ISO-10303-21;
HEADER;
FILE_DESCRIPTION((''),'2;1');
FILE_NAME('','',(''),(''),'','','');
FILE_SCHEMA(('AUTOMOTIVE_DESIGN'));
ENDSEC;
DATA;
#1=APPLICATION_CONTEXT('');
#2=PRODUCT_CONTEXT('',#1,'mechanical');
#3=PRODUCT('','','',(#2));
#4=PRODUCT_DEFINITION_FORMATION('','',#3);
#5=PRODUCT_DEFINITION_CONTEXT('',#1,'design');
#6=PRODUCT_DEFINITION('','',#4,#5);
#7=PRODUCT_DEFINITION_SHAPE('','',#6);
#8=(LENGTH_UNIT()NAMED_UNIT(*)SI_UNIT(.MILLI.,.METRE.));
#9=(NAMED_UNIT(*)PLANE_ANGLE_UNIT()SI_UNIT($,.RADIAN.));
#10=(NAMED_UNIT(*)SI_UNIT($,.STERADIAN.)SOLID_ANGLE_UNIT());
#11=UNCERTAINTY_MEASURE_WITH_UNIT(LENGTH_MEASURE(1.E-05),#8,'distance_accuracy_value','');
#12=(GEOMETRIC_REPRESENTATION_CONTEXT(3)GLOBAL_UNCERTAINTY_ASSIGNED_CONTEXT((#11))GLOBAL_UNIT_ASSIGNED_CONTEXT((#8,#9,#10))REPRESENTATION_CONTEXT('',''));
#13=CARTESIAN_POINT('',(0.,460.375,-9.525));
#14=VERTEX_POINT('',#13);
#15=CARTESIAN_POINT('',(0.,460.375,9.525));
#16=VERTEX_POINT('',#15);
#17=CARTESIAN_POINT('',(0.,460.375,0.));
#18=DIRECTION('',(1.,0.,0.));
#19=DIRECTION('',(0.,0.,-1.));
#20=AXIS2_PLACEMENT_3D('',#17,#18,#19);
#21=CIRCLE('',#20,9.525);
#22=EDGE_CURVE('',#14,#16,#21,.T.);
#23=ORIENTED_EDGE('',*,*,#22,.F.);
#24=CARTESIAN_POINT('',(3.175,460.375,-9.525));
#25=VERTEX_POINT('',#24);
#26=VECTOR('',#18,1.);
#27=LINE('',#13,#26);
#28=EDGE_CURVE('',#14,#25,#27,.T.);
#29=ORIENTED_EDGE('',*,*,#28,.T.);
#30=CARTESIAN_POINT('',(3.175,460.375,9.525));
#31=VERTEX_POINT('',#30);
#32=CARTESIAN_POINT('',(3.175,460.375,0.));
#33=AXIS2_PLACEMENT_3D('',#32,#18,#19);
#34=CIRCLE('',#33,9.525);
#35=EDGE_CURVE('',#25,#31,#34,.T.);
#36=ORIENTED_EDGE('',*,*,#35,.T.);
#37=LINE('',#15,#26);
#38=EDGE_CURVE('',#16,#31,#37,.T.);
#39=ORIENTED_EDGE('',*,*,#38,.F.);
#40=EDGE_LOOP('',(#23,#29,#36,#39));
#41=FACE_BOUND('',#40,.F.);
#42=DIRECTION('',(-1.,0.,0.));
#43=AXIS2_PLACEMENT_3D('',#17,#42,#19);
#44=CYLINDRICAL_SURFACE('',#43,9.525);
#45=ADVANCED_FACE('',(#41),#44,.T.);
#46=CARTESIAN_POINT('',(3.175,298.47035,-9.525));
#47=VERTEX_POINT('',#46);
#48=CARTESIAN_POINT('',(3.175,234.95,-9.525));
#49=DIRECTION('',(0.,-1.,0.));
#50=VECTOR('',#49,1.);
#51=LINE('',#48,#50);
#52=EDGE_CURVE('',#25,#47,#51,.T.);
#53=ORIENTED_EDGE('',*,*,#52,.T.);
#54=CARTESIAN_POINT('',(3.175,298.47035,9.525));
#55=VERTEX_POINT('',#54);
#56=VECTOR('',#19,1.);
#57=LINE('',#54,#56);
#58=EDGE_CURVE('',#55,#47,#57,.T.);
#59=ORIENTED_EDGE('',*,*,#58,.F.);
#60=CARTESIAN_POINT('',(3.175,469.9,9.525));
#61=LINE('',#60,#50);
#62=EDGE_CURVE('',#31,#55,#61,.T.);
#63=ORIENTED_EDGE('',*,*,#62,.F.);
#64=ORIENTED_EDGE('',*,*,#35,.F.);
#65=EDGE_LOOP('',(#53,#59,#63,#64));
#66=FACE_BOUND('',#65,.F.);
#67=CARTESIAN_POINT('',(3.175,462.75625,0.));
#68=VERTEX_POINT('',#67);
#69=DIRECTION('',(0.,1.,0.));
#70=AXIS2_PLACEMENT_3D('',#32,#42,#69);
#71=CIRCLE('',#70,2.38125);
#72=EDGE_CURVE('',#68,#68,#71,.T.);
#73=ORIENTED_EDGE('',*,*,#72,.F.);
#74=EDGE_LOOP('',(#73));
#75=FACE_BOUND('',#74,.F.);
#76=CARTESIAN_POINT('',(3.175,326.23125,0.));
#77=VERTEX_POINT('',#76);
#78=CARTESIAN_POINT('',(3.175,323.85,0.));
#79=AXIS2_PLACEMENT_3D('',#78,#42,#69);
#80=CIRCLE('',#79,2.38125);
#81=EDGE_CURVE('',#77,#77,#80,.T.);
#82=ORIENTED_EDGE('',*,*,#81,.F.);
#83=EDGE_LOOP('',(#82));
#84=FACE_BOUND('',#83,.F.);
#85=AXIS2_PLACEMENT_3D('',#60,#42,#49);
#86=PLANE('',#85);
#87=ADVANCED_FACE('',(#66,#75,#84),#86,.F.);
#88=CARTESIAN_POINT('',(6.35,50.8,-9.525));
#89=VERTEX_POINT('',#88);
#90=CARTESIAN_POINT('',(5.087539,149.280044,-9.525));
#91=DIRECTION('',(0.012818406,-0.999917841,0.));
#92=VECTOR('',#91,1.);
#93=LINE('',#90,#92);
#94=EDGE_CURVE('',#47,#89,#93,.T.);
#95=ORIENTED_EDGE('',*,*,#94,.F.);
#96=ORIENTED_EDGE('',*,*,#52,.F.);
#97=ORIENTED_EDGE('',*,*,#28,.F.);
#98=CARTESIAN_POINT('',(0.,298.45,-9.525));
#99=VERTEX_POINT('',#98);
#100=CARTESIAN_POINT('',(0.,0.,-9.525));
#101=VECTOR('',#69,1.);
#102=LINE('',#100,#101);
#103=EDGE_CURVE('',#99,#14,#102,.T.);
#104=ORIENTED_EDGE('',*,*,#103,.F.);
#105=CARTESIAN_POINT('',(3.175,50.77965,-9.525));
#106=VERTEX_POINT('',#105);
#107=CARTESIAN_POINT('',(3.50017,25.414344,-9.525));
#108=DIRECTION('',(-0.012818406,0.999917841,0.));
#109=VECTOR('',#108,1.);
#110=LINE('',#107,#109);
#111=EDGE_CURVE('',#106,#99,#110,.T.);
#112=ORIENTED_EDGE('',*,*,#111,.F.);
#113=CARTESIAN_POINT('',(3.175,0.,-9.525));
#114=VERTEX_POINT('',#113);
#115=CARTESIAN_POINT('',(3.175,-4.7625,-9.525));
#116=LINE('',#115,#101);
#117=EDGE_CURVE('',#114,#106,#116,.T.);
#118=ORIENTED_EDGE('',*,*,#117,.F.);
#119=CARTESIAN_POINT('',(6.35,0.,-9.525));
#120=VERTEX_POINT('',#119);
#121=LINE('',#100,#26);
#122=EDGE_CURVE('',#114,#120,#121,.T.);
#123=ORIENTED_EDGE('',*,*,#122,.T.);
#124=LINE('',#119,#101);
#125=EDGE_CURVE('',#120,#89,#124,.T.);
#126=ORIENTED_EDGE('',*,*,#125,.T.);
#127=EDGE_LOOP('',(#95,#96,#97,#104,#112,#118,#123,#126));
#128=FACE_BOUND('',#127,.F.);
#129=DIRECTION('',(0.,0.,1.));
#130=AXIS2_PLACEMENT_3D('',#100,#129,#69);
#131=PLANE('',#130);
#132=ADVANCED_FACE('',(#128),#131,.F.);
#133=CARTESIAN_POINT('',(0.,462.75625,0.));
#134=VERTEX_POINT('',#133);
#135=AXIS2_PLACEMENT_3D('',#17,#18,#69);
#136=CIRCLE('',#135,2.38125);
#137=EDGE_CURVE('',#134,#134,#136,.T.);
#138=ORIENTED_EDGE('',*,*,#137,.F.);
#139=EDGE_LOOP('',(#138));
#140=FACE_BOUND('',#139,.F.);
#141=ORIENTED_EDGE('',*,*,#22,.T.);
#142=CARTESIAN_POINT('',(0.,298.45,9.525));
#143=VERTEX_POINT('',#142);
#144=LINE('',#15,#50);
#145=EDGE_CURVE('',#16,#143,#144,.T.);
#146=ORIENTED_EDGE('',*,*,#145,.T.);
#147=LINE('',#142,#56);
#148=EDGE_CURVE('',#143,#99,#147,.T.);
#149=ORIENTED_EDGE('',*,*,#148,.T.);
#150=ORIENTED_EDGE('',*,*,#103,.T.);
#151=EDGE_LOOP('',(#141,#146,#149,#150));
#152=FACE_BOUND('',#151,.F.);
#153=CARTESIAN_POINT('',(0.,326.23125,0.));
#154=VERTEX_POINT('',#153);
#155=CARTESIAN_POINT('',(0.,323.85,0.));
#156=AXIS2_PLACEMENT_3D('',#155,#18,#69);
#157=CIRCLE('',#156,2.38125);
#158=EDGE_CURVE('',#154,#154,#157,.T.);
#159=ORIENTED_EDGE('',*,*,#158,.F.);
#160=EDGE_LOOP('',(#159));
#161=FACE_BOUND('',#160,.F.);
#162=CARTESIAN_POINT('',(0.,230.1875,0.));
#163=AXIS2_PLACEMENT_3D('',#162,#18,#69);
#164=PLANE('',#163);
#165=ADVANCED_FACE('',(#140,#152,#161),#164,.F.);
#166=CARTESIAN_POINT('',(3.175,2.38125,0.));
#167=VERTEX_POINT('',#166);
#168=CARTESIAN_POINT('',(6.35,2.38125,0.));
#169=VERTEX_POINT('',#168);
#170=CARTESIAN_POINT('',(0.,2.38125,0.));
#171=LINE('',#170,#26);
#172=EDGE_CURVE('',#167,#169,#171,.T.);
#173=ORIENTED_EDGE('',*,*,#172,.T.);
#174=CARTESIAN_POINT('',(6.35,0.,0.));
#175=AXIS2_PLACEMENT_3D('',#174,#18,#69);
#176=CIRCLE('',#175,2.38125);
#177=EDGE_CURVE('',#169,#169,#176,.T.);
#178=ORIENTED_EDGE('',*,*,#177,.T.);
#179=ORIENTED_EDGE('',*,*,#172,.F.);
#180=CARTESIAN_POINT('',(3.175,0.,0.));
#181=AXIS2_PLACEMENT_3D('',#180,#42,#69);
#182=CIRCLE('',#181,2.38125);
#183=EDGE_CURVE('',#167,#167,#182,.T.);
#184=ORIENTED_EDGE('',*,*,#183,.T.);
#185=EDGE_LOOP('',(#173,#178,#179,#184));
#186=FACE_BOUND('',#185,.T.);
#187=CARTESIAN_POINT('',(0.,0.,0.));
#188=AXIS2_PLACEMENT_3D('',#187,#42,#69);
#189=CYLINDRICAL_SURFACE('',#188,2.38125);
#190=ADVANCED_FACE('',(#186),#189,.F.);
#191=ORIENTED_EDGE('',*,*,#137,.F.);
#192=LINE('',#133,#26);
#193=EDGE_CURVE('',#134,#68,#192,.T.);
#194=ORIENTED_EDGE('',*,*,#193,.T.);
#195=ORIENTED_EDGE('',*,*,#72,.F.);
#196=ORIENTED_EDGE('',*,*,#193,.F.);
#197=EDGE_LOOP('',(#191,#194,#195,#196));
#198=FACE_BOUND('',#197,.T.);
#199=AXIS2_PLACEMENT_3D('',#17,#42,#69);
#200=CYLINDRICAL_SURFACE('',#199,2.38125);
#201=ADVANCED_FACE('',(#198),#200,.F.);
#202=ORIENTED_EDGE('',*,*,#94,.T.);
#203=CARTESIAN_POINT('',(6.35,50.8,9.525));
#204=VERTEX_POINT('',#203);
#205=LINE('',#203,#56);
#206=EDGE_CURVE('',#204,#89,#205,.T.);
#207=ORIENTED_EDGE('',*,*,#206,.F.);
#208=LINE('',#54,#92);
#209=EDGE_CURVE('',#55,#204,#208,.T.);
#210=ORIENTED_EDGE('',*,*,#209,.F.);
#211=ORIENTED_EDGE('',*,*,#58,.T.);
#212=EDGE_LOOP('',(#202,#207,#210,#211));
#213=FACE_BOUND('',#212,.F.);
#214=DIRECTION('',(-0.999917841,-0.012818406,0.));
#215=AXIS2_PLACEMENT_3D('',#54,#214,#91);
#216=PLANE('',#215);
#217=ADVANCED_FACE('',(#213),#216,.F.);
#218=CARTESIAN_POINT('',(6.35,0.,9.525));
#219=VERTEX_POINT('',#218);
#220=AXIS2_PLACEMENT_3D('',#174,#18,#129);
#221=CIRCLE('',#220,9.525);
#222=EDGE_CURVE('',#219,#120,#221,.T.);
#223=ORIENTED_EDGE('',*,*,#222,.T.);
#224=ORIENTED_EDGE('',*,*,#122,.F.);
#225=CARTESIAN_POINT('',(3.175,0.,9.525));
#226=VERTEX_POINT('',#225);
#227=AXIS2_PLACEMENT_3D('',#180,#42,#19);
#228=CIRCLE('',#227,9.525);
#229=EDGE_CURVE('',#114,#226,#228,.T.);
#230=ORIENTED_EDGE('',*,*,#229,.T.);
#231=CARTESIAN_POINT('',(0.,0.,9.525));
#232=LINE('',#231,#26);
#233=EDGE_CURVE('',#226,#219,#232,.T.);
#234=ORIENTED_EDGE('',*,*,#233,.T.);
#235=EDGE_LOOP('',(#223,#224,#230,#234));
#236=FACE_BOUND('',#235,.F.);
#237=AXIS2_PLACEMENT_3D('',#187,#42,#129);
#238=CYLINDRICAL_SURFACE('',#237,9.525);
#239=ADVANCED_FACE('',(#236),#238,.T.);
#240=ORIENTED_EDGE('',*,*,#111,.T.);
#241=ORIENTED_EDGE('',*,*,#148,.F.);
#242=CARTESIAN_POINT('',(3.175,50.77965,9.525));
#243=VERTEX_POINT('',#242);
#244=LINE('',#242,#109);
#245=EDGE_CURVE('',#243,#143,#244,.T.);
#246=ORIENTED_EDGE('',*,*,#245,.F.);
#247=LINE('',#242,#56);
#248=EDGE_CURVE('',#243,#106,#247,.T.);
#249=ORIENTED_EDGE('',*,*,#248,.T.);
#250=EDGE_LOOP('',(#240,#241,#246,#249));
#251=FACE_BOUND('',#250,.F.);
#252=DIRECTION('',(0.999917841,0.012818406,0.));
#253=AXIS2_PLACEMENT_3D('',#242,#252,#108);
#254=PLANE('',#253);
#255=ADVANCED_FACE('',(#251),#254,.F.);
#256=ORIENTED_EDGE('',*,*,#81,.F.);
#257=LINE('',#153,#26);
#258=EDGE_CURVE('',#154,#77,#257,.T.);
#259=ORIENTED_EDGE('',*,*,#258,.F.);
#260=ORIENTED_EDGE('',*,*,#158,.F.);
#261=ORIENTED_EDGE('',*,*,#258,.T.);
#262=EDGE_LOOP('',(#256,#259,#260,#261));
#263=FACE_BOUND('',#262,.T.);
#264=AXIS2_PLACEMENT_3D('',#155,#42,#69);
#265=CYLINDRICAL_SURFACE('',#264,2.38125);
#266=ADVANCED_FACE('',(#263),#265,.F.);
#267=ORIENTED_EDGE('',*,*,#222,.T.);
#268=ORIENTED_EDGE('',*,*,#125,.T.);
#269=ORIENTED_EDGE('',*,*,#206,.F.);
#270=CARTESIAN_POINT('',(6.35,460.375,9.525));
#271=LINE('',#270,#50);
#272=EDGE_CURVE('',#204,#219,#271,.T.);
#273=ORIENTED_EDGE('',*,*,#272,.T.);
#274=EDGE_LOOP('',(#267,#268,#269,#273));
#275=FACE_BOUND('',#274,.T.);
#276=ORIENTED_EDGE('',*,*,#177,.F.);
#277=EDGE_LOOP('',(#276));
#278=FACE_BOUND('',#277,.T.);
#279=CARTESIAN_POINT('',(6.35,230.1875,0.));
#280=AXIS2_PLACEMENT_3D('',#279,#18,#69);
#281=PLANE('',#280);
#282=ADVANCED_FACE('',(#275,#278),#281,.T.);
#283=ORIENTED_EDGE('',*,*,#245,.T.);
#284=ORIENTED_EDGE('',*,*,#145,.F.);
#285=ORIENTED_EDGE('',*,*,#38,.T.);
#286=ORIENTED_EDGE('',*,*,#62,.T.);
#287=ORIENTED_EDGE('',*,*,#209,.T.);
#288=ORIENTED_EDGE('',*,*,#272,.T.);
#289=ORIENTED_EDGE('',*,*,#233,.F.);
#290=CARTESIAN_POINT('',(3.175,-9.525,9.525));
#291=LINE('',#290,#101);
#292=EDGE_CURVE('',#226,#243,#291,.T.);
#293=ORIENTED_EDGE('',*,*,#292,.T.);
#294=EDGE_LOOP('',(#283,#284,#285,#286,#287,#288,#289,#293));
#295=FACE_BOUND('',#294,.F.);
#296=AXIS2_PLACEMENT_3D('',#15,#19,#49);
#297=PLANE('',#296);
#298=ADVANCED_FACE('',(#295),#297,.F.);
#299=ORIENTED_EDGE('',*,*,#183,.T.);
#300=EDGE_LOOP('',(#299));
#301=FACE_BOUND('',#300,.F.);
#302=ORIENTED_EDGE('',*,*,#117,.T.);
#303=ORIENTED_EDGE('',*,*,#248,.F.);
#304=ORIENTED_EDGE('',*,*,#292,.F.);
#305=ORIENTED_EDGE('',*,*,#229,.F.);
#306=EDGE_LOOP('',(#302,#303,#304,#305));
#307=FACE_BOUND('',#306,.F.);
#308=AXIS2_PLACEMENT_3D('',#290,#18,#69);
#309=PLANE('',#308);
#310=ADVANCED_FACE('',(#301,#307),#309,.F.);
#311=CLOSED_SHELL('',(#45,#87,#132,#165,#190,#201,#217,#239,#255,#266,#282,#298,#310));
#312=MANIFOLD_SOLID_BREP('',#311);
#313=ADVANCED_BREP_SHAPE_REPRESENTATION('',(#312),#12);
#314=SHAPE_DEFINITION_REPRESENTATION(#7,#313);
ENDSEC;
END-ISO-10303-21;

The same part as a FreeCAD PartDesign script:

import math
import FreeCAD as App
import Part
import Sketcher

V = App.Vector
Q = App.Units.Quantity

doc = App.newDocument("Part")
body = doc.addObject("PartDesign::Body", "Body")

# Sketch on YZ plane
sketch1 = body.newObject("Sketcher::SketchObject", "Sketch")
sketch1.AttachmentSupport = (doc.getObject("YZ_Plane"), [""])
sketch1.MapMode = "FlatFace"
sketch1.addGeometry([
    Part.LineSegment(V(460.4, 9.5, 0), V(0, 9.5, 0)),  # 0
    Part.ArcOfCircle(Part.Circle(V(0, 0, 0), V(0, 0, 1), 9.5), math.radians(90), math.radians(270)),  # 1
    Part.LineSegment(V(0, -9.5, 0), V(460.4, -9.5, 0)),  # 2
    Part.ArcOfCircle(Part.Circle(V(460.4, 0, 0), V(0, 0, 1), 9.5), math.radians(-90), math.radians(90)),  # 3
    Part.Circle(V(0, 0, 0), V(0, 0, 1), 2.4),  # 4
    Part.Circle(V(323.9, 0, 0), V(0, 0, 1), 2.4),  # 5
    Part.Circle(V(460.4, 0, 0), V(0, 0, 1), 2.4),  # 6
], False)
sketch1.addConstraint([
    Sketcher.Constraint("Tangent", 0, 2, 1, 1),
    Sketcher.Constraint("Tangent", 1, 2, 2, 1),
    Sketcher.Constraint("Tangent", 2, 2, 3, 1),
    Sketcher.Constraint("Tangent", 3, 2, 0, 1),
    Sketcher.Constraint("Horizontal", 0),
    Sketcher.Constraint("Horizontal", 2),
    Sketcher.Constraint("Coincident", 1, 3, -1, 1),
    Sketcher.Constraint("Coincident", 4, 3, -1, 1),
    Sketcher.Constraint("Coincident", 6, 3, 3, 3),
    Sketcher.Constraint("Equal", 4, 5),
    Sketcher.Constraint("Equal", 5, 6),
    Sketcher.Constraint("PointOnObject", 5, 3, -1),
    Sketcher.Constraint("Diameter", 4, Q("0.1875 in")),
    Sketcher.Constraint("Radius", 1, Q("0.375 in")),
    Sketcher.Constraint("DistanceX", 0, 2, 0, 1, Q("18.125 in")),
    Sketcher.Constraint("DistanceX", -1, 1, 5, 3, Q("12.75 in")),
])
pad1 = body.newObject("PartDesign::Pad", "Pad")
pad1.Profile = sketch1
pad1.Length = Q("0.25 in")

# Sketch on XY plane
sketch2 = body.newObject("Sketcher::SketchObject", "Sketch001")
sketch2.AttachmentSupport = (doc.getObject("XY_Plane"), [""])
sketch2.MapMode = "FlatFace"
sketch2.AttachmentOffset = App.Placement(V(0, 0, 0.375 * 25.4), App.Rotation())
sketch2.addGeometry([
    Part.LineSegment(V(3.2, 298.5, 0), V(6.3, 50.8, 0)),  # 0
    Part.LineSegment(V(6.3, 50.8, 0), V(6.3, 469.9, 0)),  # 1
    Part.LineSegment(V(6.3, 469.9, 0), V(3.2, 469.9, 0)),  # 2
    Part.LineSegment(V(3.2, 469.9, 0), V(3.2, 298.5, 0)),  # 3
    Part.LineSegment(V(3.2, 50.8, 0), V(0, 298.4, 0)),  # 4
    Part.LineSegment(V(0, 298.4, 0), V(0, -9.5, 0)),  # 5
    Part.LineSegment(V(0, -9.5, 0), V(3.2, -9.5, 0)),  # 6
    Part.LineSegment(V(3.2, -9.5, 0), V(3.2, 50.8, 0)),  # 7
], False)
sketch2.addConstraint([
    Sketcher.Constraint("Coincident", 0, 2, 1, 1),
    Sketcher.Constraint("Coincident", 1, 2, 2, 1),
    Sketcher.Constraint("Coincident", 2, 2, 3, 1),
    Sketcher.Constraint("Coincident", 3, 2, 0, 1),
    Sketcher.Constraint("Coincident", 4, 2, 5, 1),
    Sketcher.Constraint("Coincident", 5, 2, 6, 1),
    Sketcher.Constraint("Coincident", 6, 2, 7, 1),
    Sketcher.Constraint("Coincident", 7, 2, 4, 1),
    Sketcher.Constraint("Vertical", 1),
    Sketcher.Constraint("Horizontal", 2),
    Sketcher.Constraint("Vertical", 3),
    Sketcher.Constraint("Vertical", 5),
    Sketcher.Constraint("Horizontal", 6),
    Sketcher.Constraint("Vertical", 7),
    Sketcher.Constraint("PointOnObject", 4, 2, -2),
    Sketcher.Constraint("Parallel", 0, 4),
    Sketcher.Constraint("Vertical", 3, 2, 6, 2),
    Sketcher.Constraint("Equal", 2, 6),
    Sketcher.Constraint("DistanceY", 1, 1, 1, 2, Q("16.5 in")),
    Sketcher.Constraint("DistanceY", -1, 1, 0, 2, Q("2 in")),
    Sketcher.Constraint("DistanceX", 2, 2, 2, 1, Q("0.125 in")),
    Sketcher.Constraint("DistanceY", 5, 2, 5, 1, Q("12.125 in")),
    Sketcher.Constraint("DistanceY", -1, 1, 4, 2, Q("11.75 in")),
    Sketcher.Constraint("Distance", 0, Q("247.6907 mm")),
])
pocket1 = body.newObject("PartDesign::Pocket", "Pocket")
pocket1.Profile = sketch2
pocket1.Length = Q("1 in")

doc.recompute()
